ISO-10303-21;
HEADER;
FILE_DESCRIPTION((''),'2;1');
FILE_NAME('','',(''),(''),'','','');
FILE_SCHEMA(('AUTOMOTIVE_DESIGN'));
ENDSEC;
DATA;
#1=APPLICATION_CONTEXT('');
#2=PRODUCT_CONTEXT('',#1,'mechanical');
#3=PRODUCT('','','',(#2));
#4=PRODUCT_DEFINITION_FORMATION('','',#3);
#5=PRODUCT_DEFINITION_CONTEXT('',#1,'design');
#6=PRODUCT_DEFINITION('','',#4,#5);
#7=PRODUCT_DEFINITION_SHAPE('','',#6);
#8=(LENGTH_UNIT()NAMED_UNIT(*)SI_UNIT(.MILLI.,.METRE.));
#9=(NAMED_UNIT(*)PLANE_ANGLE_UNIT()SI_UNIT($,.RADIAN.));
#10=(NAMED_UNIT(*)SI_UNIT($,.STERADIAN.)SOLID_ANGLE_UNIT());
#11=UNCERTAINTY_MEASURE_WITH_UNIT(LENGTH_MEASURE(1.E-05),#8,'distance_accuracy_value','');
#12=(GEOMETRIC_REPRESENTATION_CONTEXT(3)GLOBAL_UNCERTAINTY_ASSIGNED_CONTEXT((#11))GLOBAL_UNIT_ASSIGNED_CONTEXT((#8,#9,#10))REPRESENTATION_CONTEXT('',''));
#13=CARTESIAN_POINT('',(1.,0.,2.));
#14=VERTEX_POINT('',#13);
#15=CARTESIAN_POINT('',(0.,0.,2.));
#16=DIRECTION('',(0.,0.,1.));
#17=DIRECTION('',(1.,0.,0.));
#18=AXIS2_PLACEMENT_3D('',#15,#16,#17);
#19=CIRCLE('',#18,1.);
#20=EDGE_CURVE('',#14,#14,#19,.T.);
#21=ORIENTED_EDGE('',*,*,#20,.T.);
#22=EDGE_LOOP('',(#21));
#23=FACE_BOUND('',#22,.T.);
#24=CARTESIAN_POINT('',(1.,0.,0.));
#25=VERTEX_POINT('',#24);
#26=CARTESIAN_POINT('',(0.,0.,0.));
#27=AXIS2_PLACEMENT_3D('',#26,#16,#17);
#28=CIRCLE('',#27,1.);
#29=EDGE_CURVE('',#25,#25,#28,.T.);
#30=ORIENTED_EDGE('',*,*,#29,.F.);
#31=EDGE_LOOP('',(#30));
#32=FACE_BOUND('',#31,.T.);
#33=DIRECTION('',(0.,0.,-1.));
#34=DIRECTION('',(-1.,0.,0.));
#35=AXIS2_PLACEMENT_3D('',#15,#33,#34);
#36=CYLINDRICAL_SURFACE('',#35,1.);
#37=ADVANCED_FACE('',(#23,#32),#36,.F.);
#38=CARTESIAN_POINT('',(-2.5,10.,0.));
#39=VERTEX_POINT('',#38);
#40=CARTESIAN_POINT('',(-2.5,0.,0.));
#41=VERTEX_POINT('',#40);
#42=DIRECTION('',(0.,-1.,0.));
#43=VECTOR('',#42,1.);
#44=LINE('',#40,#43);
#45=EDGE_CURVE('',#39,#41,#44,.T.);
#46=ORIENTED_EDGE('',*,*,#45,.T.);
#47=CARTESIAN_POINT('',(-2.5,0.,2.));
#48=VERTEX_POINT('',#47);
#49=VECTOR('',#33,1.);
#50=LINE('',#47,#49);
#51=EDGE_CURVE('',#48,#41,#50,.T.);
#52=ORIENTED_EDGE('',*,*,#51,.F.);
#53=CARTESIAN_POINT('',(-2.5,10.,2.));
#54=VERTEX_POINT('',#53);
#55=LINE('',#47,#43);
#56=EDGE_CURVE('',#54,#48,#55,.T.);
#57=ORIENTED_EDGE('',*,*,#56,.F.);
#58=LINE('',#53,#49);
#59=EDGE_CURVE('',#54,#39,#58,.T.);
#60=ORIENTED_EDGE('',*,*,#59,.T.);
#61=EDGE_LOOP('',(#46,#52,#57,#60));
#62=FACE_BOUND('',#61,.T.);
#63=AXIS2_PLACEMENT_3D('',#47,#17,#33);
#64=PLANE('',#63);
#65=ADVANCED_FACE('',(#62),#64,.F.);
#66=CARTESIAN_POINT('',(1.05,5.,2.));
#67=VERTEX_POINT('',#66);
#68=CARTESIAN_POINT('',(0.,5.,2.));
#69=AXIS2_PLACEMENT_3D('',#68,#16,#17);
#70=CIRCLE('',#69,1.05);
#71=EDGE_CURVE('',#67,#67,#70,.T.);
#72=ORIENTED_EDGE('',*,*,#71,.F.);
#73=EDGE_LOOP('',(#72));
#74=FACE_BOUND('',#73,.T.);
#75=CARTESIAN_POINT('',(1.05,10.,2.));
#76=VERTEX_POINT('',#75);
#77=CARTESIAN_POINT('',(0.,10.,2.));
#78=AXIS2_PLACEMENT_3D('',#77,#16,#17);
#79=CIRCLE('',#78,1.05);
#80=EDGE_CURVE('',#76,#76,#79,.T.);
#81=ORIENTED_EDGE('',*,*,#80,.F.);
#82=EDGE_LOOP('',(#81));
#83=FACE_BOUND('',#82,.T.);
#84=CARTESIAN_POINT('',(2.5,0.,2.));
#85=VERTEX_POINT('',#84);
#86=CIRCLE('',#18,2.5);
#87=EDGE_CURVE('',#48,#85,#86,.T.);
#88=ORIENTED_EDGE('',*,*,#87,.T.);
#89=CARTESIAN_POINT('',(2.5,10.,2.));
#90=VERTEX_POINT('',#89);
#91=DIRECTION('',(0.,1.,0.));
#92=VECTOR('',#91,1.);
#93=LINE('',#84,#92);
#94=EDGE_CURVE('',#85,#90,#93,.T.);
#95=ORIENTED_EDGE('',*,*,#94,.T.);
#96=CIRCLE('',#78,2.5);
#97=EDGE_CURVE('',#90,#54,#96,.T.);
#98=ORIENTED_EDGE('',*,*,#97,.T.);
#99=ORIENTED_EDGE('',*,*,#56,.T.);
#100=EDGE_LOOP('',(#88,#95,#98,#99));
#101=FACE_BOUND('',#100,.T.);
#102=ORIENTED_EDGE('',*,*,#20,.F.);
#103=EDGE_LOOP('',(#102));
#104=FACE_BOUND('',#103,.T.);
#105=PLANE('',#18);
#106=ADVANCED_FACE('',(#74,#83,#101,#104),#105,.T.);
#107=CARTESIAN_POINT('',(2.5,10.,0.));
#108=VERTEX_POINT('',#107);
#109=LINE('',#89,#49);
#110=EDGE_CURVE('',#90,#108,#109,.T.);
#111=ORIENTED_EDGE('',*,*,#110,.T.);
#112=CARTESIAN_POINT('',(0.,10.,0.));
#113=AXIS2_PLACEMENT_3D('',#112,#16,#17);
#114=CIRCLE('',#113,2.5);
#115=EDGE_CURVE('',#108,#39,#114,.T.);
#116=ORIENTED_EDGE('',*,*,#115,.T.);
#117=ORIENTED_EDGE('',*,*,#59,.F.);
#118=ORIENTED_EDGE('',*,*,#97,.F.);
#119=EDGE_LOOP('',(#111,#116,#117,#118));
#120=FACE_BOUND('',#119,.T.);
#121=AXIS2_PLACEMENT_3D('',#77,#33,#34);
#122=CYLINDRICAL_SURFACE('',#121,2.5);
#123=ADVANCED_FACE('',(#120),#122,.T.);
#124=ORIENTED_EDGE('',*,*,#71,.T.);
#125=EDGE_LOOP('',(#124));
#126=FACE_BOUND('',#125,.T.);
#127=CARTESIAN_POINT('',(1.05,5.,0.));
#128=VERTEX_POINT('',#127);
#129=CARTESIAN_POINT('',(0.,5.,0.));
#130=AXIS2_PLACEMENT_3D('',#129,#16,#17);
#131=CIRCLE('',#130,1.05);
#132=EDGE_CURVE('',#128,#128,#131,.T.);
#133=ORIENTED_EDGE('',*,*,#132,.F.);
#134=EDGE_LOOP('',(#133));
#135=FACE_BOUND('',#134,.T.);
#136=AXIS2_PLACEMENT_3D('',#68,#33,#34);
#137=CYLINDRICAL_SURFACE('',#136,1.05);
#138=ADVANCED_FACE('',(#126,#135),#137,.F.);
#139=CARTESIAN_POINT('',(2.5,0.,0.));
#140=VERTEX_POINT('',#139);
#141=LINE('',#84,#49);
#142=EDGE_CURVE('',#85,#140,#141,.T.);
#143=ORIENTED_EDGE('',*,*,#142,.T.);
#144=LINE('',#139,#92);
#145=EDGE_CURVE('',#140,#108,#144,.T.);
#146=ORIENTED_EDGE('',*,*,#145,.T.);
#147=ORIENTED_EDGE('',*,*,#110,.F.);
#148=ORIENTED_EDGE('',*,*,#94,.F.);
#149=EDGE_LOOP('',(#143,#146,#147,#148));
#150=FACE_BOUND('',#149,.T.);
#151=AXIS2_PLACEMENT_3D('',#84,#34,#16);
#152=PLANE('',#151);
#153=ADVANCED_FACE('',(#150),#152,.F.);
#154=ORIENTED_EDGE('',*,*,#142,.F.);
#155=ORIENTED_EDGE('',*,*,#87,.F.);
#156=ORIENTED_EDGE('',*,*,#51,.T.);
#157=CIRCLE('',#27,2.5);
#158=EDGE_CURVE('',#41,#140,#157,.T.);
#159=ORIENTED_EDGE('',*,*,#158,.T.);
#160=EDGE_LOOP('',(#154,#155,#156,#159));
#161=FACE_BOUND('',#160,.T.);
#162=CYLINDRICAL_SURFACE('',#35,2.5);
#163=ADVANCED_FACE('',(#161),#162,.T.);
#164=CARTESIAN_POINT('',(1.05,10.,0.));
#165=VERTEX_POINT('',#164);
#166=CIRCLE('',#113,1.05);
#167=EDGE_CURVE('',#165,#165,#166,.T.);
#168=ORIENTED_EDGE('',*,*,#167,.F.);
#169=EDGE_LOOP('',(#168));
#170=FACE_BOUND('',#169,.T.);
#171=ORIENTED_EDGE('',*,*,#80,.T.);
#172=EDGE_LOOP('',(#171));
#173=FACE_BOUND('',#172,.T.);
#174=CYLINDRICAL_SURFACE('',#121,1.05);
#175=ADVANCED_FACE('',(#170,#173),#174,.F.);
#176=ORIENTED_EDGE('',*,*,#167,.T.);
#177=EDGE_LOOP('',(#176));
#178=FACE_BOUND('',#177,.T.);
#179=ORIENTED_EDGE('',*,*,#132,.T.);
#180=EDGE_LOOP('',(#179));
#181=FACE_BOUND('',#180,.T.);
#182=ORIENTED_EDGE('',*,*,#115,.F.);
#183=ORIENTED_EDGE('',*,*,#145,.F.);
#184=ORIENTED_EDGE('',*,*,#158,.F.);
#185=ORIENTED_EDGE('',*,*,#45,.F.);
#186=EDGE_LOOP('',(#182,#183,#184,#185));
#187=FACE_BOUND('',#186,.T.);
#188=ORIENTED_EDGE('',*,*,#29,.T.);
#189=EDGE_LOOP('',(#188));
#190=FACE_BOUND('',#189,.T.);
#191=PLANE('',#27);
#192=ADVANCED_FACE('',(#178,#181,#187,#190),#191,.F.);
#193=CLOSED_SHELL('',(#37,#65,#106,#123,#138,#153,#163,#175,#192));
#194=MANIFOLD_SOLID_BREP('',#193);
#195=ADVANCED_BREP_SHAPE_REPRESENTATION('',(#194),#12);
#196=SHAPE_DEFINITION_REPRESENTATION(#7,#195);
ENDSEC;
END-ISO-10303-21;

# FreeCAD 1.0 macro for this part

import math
import FreeCAD as App
import Part
import Sketcher

doc = App.newDocument("Part")
params = doc.addObject("Spreadsheet::Sheet", "Params")
for row, (alias, value) in enumerate([
    ("sketch1_diameter", "2 mm"),
    ("sketch1_diameter2", "2.1 mm"),
    ("sketch1_radius", "2.5 mm"),
    ("sketch1_height", "10 mm"),
    ("pad1_length", "2 mm"),
], start=1):
    params.set(f"A{row}", alias)
    params.set(f"B{row}", "=" + value)
    params.setAlias(f"B{row}", alias)

body = doc.addObject("PartDesign::Body", "Body")

sketch1 = doc.addObject("Sketcher::SketchObject", "Sketch")
body.addObject(sketch1)
sketch1.AttachmentSupport = (doc.XY_Plane, [""])
sketch1.MapMode = "FlatFace"
sketch1.addGeometry([
    Part.LineSegment(App.Vector(-2.5, 10, 0), App.Vector(-2.5, 0, 0)),
    Part.ArcOfCircle(Part.Circle(App.Vector(0, 0, 0), App.Vector(0, 0, 1), 2.5), math.radians(180), math.radians(360)),
    Part.LineSegment(App.Vector(2.5, 0, 0), App.Vector(2.5, 10, 0)),
    Part.ArcOfCircle(Part.Circle(App.Vector(0, 10, 0), App.Vector(0, 0, 1), 2.5), math.radians(0), math.radians(180)),
    Part.Circle(App.Vector(0, 0, 0), App.Vector(0, 0, 1), 1),
    Part.Circle(App.Vector(0, 5, 0), App.Vector(0, 0, 1), 1.05),
    Part.Circle(App.Vector(0, 10, 0), App.Vector(0, 0, 1), 1.05),
], False)
sketch1.addConstraint([
    Sketcher.Constraint("Tangent", 0, 2, 1, 1),
    Sketcher.Constraint("Tangent", 1, 2, 2, 1),
    Sketcher.Constraint("Tangent", 2, 2, 3, 1),
    Sketcher.Constraint("Tangent", 3, 2, 0, 1),
    Sketcher.Constraint("Vertical", 0),
    Sketcher.Constraint("Vertical", 2),
    Sketcher.Constraint("Coincident", 1, 3, -1, 1),
    Sketcher.Constraint("Coincident", 4, 3, -1, 1),
    Sketcher.Constraint("Coincident", 6, 3, 3, 3),
    Sketcher.Constraint("Equal", 5, 6),
    Sketcher.Constraint("PointOnObject", 5, 3, -2),
    Sketcher.Constraint("Diameter", 4, 2.0),
    Sketcher.Constraint("Diameter", 5, 2.1),
    Sketcher.Constraint("Radius", 1, 2.5),
    Sketcher.Constraint("DistanceY", 0, 2, 0, 1, 10.0),
    Sketcher.Constraint("DistanceY", -1, 1, 5, 3, 5.0),
])
sketch1.setExpression("Constraints[11]", "Params.sketch1_diameter")
sketch1.setExpression("Constraints[12]", "Params.sketch1_diameter2")
sketch1.setExpression("Constraints[13]", "Params.sketch1_radius")
sketch1.setExpression("Constraints[14]", "Params.sketch1_height")
pad1 = doc.addObject("PartDesign::Pad", "Pad")
body.addObject(pad1)
pad1.Profile = sketch1
pad1.setExpression("Length", "Params.pad1_length")

doc.recompute()
